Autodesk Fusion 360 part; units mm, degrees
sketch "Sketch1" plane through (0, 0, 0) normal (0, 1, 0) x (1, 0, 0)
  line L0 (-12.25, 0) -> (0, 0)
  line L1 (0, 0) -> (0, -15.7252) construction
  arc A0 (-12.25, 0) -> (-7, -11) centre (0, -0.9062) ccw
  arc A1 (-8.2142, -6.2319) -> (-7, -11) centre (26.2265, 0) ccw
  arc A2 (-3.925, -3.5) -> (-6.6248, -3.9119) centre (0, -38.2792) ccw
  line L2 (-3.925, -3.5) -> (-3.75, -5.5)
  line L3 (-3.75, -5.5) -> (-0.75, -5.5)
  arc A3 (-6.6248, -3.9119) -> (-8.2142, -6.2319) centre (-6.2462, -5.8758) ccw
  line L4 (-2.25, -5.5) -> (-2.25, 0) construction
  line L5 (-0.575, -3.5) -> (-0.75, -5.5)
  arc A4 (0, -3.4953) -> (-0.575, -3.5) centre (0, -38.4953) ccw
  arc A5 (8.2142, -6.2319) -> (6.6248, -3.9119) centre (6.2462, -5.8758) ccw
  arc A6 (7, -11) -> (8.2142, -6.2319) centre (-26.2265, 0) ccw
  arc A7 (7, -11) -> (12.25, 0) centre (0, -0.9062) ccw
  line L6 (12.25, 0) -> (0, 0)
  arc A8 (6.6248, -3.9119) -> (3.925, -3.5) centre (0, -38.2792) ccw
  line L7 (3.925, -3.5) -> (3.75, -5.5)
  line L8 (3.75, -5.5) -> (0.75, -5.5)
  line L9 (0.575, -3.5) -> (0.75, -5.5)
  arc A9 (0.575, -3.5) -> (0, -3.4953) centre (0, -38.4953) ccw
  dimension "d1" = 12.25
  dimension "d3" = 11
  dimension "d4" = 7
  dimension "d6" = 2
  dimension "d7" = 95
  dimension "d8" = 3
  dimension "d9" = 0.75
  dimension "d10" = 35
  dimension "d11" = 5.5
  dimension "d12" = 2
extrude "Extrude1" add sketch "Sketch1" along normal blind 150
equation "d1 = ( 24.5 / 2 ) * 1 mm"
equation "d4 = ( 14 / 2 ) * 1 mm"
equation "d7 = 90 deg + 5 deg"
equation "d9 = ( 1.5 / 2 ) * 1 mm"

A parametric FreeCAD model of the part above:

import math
import FreeCAD as App
import Part
import Sketcher
from FreeCAD import Vector
Q = App.Units.Quantity

doc = App.newDocument("Part")
body = doc.addObject("PartDesign::Body", "Body")

# Sketch on XZ plane
sketch1 = body.newObject("Sketcher::SketchObject", "Sketch")
sketch1.AttachmentSupport = (doc.getObject("XZ_Plane"), [""])
sketch1.MapMode = "FlatFace"
sketch1.addGeometry([
    Part.LineSegment(Vector(12.2, 0, 0), Vector(-12.2, 0, 0)),  # 0
    Part.ArcOfCircle(Part.Circle(Vector(0, 0.9, 0), Vector(0, 0, 1), 12.3), math.radians(125), math.radians(184)),  # 1
    Part.ArcOfCircle(Part.Circle(Vector(26.2, 0, 0), Vector(0, 0, 1), 35), math.radians(161.68), math.radians(169.74)),  # 2
    Part.ArcOfCircle(Part.Circle(Vector(-6.2, 5.9, 0), Vector(0, 0, 1), 2), math.radians(170), math.radians(259)),  # 3
    Part.ArcOfCircle(Part.Circle(Vector(0, 38.3, 0), Vector(0, 0, 1), 35), math.radians(-100.91), math.radians(-96.44)),  # 4
    Part.LineSegment(Vector(-3.9, 3.5, 0), Vector(-3.8, 5.5, 0)),  # 5
    Part.LineSegment(Vector(-3.8, 5.5, 0), Vector(-0.8, 5.5, 0)),  # 6
    Part.LineSegment(Vector(-0.8, 5.5, 0), Vector(-0.6, 3.5, 0)),  # 7
    Part.ArcOfCircle(Part.Circle(Vector(0, 38.8, 0), Vector(0, 0, 1), 35.4), math.radians(-90.93), math.radians(-90)),  # 8
    Part.ArcOfCircle(Part.Circle(Vector(0, 38.2, 0), Vector(0, 0, 1), 34.7), math.radians(-90.01), math.radians(-89.06)),  # 9
    Part.LineSegment(Vector(0.6, 3.5, 0), Vector(0.8, 5.5, 0)),  # 10
    Part.LineSegment(Vector(0.8, 5.5, 0), Vector(3.8, 5.5, 0)),  # 11
    Part.LineSegment(Vector(3.8, 5.5, 0), Vector(3.9, 3.5, 0)),  # 12
    Part.ArcOfCircle(Part.Circle(Vector(0, 38.3, 0), Vector(0, 0, 1), 35), math.radians(-83.56), math.radians(-79.09)),  # 13
    Part.ArcOfCircle(Part.Circle(Vector(6.2, 5.9, 0), Vector(0, 0, 1), 2), math.radians(-79), math.radians(10)),  # 14
    Part.ArcOfCircle(Part.Circle(Vector(-26.2, 0, 0), Vector(0, 0, 1), 35), math.radians(10.26), math.radians(18.32)),  # 15
    Part.ArcOfCircle(Part.Circle(Vector(0, 0.9, 0), Vector(0, 0, 1), 12.3), math.radians(-4), math.radians(55)),  # 16
], False)
sketch1.addConstraint([
    Sketcher.Constraint("Coincident", 0, 2, 1, 2),
    Sketcher.Constraint("Coincident", 1, 1, 2, 1),
    Sketcher.Constraint("Tangent", 2, 2, 3, 1),
    Sketcher.Constraint("Tangent", 3, 2, 4, 1),
    Sketcher.Constraint("Coincident", 4, 2, 5, 1),
    Sketcher.Constraint("Coincident", 5, 2, 6, 1),
    Sketcher.Constraint("Coincident", 6, 2, 7, 1),
    Sketcher.Constraint("Coincident", 7, 2, 8, 1),
    Sketcher.Constraint("Tangent", 8, 2, 9, 1),
    Sketcher.Constraint("Coincident", 9, 2, 10, 1),
    Sketcher.Constraint("Coincident", 10, 2, 11, 1),
    Sketcher.Constraint("Coincident", 11, 2, 12, 1),
    Sketcher.Constraint("Coincident", 12, 2, 13, 1),
    Sketcher.Constraint("Tangent", 13, 2, 14, 1),
    Sketcher.Constraint("Tangent", 14, 2, 15, 1),
    Sketcher.Constraint("Coincident", 15, 2, 16, 2),
    Sketcher.Constraint("Coincident", 16, 1, 0, 1),
    Sketcher.Constraint("Horizontal", 0),
    Sketcher.Constraint("Horizontal", 6),
    Sketcher.Constraint("Horizontal", 11),
    Sketcher.Constraint("Coincident", 16, 3, 1, 3),
    Sketcher.Constraint("Equal", 3, 14),
    Sketcher.Constraint("Equal", 1, 16),
    Sketcher.Constraint("Symmetric", 0, 2, 16, 1, -1, 1),
    Sketcher.Constraint("Symmetric", 3, 3, 14, 3, -2),
    Sketcher.Constraint("Symmetric", 7, 2, 9, 2, -2),
    Sketcher.Constraint("Symmetric", 6, 2, 10, 2, -2),
    Sketcher.Constraint("Symmetric", 4, 2, 12, 2, -2),
    Sketcher.Constraint("PointOnObject", 8, 2, -2),
    Sketcher.Constraint("Parallel", 5, 10),
    Sketcher.Constraint("Parallel", 7, 12),
    Sketcher.Constraint("Horizontal", 4, 2, 7, 2),
    Sketcher.Constraint("Horizontal", 2, 2, 14, 2),
    Sketcher.Constraint("Vertical", 8, 3, 13, 3),
    Sketcher.Constraint("Radius", 3, Q("2 mm")),
    Sketcher.Constraint("DistanceX", 6, 1, 6, 2, Q("3 mm")),
    Sketcher.Constraint("DistanceX", 1, 1, -1, 1, Q("7 mm")),
    Sketcher.Constraint("DistanceY", -1, 1, 1, 1, Q("11 mm")),
    Sketcher.Constraint("DistanceY", 4, 2, 5, 2, Q("2 mm")),
    Sketcher.Constraint("DistanceY", -1, 1, 5, 2, Q("5.5 mm")),
    Sketcher.Constraint("DistanceX", 0, 2, -1, 1, Q("12.25 mm")),
    Sketcher.Constraint("DistanceX", 6, 2, -1, 1, Q("0.75 mm")),
    Sketcher.Constraint("Angle", 5, Q("84.9994 deg")),
    Sketcher.Constraint("Radius", 2, Q("35.0055 mm")),
    Sketcher.Constraint("Radius", 4, Q("35.0085 mm")),
    Sketcher.Constraint("Radius", 8, Q("35.3522 mm")),
    Sketcher.Constraint("Radius", 9, Q("34.6548 mm")),
    Sketcher.Constraint("Radius", 13, Q("34.9915 mm")),
    Sketcher.Constraint("Radius", 15, Q("34.9945 mm")),
    Sketcher.Constraint("DistanceY", 13, 2, 14, 2, Q("2.32 mm")),
])
pad1 = body.newObject("PartDesign::Pad", "Pad")
pad1.Profile = sketch1
pad1.Length = 150
pad1.Reversed = True

doc.recompute()
